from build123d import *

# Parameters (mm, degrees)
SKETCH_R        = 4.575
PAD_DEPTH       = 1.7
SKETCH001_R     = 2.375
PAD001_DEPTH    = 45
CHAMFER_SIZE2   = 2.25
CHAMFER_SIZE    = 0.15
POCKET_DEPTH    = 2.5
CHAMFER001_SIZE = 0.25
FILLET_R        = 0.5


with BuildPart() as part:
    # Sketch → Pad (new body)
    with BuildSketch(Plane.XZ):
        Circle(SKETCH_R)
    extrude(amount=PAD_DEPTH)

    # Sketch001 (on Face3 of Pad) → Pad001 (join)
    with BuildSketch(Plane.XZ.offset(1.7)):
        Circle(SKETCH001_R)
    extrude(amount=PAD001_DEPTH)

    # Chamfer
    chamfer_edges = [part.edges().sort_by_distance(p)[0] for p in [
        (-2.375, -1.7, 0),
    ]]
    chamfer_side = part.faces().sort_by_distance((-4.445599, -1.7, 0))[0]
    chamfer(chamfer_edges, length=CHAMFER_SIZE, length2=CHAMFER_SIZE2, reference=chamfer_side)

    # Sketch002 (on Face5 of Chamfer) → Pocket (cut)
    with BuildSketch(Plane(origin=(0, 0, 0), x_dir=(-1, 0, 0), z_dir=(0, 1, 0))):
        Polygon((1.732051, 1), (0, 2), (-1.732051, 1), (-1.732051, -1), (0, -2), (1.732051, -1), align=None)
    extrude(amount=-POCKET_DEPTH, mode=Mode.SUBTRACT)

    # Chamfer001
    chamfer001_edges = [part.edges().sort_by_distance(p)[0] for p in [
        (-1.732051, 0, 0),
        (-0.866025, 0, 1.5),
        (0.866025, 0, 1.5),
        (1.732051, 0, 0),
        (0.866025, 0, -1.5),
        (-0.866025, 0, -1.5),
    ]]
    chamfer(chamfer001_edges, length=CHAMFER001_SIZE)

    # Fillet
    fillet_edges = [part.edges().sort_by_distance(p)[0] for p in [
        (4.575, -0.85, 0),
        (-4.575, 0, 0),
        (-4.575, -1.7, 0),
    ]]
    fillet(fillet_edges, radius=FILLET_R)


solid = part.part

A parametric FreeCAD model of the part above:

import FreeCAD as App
import Part
import Sketcher
from FreeCAD import Vector
Q = App.Units.Quantity


def edges_at(feature, points):
    """Names of the edges that pass closest to the given points."""
    edges = feature.Shape.Edges
    near = lambda p: min(range(len(edges)), key=lambda i: edges[i].distToShape(Part.Vertex(*p))[0])
    return sorted({f"Edge{near(p) + 1}" for p in points})

doc = App.newDocument("Part")
params = doc.addObject("Spreadsheet::Sheet", "Params")
for row, (alias, value) in enumerate([
    ("sketch1_diameter", "9.15 mm"),
    ("pad1_length", "1.7 mm"),
    ("sketch2_diameter", "4.75 mm"),
    ("pad2_length", "45 mm"),
    ("chamfer_size", "0.15 mm"),
    ("chamfer_size2", "2.25 mm"),
    ("sketch3_height", "2 mm"),
    ("sketch3_length", "2 mm"),
    ("pocket1_length", "2.5 mm"),
    ("chamfer2_size", "0.25 mm"),
    ("fillet_radius", "0.5 mm"),
], start=1):
    params.set(f"A{row}", alias)
    params.set(f"B{row}", "=" + value)
    params.setAlias(f"B{row}", alias)

body = doc.addObject("PartDesign::Body", "Body")

sketch1 = doc.addObject("Sketcher::SketchObject", "Sketch")
body.addObject(sketch1)
sketch1.AttachmentSupport = (doc.XZ_Plane, [""])
sketch1.MapMode = "FlatFace"
sketch1.addGeometry(Part.Circle(Vector(0, 0, 0), Vector(0, 0, 1), 4.6), False)
sketch1.addConstraint([
    Sketcher.Constraint("Coincident", 0, 3, -1, 1),
    Sketcher.Constraint("Diameter", 0, 9.15),
])
sketch1.setExpression("Constraints[1]", "Params.sketch1_diameter")
pad1 = doc.addObject("PartDesign::Pad", "Pad")
body.addObject(pad1)
pad1.Profile = sketch1
pad1.setExpression("Length", "Params.pad1_length")

sketch2 = doc.addObject("Sketcher::SketchObject", "Sketch001")
body.addObject(sketch2)
sketch2.AttachmentSupport = (doc.XZ_Plane, [""])
sketch2.MapMode = "FlatFace"
sketch2.AttachmentOffset = App.Placement(Vector(0, 0, 1.7), App.Rotation())
sketch2.addGeometry(Part.Circle(Vector(0, 0, 0), Vector(0, 0, 1), 2.4), False)
sketch2.addConstraint([
    Sketcher.Constraint("Coincident", 0, 3, -1, 1),
    Sketcher.Constraint("Diameter", 0, 4.75),
])
sketch2.setExpression("Constraints[1]", "Params.sketch2_diameter")
pad2 = doc.addObject("PartDesign::Pad", "Pad001")
body.addObject(pad2)
pad2.Profile = sketch2
pad2.setExpression("Length", "Params.pad2_length")
doc.recompute()

chamfer = doc.addObject("PartDesign::Chamfer", "Chamfer")
body.addObject(chamfer)
chamfer.Base = (pad2, edges_at(pad2, [(-2.375, -1.7, 0)]))
chamfer.ChamferType = "Two distances"
chamfer.setExpression("Size", "Params.chamfer_size")
chamfer.setExpression("Size2", "Params.chamfer_size2")

sketch3 = doc.addObject("Sketcher::SketchObject", "Sketch002")
body.addObject(sketch3)
sketch3.AttachmentSupport = (doc.XZ_Plane, [""])
sketch3.MapMode = "FlatFace"
sketch3.addGeometry([
    Part.LineSegment(Vector(-1.7, 1, 0), Vector(0, 2, 0)),
    Part.LineSegment(Vector(0, 2, 0), Vector(1.7, 1, 0)),
    Part.LineSegment(Vector(1.7, 1, 0), Vector(1.7, -1, 0)),
    Part.LineSegment(Vector(1.7, -1, 0), Vector(0, -2, 0)),
    Part.LineSegment(Vector(0, -2, 0), Vector(-1.7, -1, 0)),
    Part.LineSegment(Vector(-1.7, -1, 0), Vector(-1.7, 1, 0)),
], False)
sketch3.addConstraint([
    Sketcher.Constraint("Coincident", 0, 2, 1, 1),
    Sketcher.Constraint("Coincident", 1, 2, 2, 1),
    Sketcher.Constraint("Coincident", 2, 2, 3, 1),
    Sketcher.Constraint("Coincident", 3, 2, 4, 1),
    Sketcher.Constraint("Coincident", 4, 2, 5, 1),
    Sketcher.Constraint("Coincident", 5, 2, 0, 1),
    Sketcher.Constraint("Vertical", 2),
    Sketcher.Constraint("Vertical", 5),
    Sketcher.Constraint("Symmetric", 0, 2, 3, 2, -1, 1),
    Sketcher.Constraint("Symmetric", 1, 2, 4, 2, -1, 1),
    Sketcher.Constraint("PointOnObject", 0, 2, -2),
    Sketcher.Constraint("Parallel", 0, 3),
    Sketcher.Constraint("Horizontal", 2, 2, 4, 2),
    Sketcher.Constraint("DistanceY", 2, 2, 2, 1, 2.0),
    Sketcher.Constraint("Angle", 0, Q("29.999997 deg")),
    Sketcher.Constraint("Distance", 0, 2.0),
])
sketch3.setExpression("Constraints[13]", "Params.sketch3_height")
sketch3.setExpression("Constraints[15]", "Params.sketch3_length")
pocket1 = doc.addObject("PartDesign::Pocket", "Pocket")
body.addObject(pocket1)
pocket1.Profile = sketch3
pocket1.setExpression("Length", "Params.pocket1_length")
pocket1.Reversed = True
doc.recompute()

chamfer2 = doc.addObject("PartDesign::Chamfer", "Chamfer001")
body.addObject(chamfer2)
chamfer2.Base = (pocket1, edges_at(pocket1, [
    (-1.732, 0, 0),
    (-0.866, 0, 1.5),
    (0.866, 0, 1.5),
    (1.732, 0, 0),
    (0.866, 0, -1.5),
    (-0.866, 0, -1.5),
]))
chamfer2.setExpression("Size", "Params.chamfer2_size")
doc.recompute()

fillet = doc.addObject("PartDesign::Fillet", "Fillet")
body.addObject(fillet)
fillet.Base = (chamfer2, edges_at(chamfer2, [(4.575, -0.85, 0), (-4.575, 0, 0), (-4.575, -1.7, 0)]))
fillet.setExpression("Radius", "Params.fillet_radius")

doc.recompute()
